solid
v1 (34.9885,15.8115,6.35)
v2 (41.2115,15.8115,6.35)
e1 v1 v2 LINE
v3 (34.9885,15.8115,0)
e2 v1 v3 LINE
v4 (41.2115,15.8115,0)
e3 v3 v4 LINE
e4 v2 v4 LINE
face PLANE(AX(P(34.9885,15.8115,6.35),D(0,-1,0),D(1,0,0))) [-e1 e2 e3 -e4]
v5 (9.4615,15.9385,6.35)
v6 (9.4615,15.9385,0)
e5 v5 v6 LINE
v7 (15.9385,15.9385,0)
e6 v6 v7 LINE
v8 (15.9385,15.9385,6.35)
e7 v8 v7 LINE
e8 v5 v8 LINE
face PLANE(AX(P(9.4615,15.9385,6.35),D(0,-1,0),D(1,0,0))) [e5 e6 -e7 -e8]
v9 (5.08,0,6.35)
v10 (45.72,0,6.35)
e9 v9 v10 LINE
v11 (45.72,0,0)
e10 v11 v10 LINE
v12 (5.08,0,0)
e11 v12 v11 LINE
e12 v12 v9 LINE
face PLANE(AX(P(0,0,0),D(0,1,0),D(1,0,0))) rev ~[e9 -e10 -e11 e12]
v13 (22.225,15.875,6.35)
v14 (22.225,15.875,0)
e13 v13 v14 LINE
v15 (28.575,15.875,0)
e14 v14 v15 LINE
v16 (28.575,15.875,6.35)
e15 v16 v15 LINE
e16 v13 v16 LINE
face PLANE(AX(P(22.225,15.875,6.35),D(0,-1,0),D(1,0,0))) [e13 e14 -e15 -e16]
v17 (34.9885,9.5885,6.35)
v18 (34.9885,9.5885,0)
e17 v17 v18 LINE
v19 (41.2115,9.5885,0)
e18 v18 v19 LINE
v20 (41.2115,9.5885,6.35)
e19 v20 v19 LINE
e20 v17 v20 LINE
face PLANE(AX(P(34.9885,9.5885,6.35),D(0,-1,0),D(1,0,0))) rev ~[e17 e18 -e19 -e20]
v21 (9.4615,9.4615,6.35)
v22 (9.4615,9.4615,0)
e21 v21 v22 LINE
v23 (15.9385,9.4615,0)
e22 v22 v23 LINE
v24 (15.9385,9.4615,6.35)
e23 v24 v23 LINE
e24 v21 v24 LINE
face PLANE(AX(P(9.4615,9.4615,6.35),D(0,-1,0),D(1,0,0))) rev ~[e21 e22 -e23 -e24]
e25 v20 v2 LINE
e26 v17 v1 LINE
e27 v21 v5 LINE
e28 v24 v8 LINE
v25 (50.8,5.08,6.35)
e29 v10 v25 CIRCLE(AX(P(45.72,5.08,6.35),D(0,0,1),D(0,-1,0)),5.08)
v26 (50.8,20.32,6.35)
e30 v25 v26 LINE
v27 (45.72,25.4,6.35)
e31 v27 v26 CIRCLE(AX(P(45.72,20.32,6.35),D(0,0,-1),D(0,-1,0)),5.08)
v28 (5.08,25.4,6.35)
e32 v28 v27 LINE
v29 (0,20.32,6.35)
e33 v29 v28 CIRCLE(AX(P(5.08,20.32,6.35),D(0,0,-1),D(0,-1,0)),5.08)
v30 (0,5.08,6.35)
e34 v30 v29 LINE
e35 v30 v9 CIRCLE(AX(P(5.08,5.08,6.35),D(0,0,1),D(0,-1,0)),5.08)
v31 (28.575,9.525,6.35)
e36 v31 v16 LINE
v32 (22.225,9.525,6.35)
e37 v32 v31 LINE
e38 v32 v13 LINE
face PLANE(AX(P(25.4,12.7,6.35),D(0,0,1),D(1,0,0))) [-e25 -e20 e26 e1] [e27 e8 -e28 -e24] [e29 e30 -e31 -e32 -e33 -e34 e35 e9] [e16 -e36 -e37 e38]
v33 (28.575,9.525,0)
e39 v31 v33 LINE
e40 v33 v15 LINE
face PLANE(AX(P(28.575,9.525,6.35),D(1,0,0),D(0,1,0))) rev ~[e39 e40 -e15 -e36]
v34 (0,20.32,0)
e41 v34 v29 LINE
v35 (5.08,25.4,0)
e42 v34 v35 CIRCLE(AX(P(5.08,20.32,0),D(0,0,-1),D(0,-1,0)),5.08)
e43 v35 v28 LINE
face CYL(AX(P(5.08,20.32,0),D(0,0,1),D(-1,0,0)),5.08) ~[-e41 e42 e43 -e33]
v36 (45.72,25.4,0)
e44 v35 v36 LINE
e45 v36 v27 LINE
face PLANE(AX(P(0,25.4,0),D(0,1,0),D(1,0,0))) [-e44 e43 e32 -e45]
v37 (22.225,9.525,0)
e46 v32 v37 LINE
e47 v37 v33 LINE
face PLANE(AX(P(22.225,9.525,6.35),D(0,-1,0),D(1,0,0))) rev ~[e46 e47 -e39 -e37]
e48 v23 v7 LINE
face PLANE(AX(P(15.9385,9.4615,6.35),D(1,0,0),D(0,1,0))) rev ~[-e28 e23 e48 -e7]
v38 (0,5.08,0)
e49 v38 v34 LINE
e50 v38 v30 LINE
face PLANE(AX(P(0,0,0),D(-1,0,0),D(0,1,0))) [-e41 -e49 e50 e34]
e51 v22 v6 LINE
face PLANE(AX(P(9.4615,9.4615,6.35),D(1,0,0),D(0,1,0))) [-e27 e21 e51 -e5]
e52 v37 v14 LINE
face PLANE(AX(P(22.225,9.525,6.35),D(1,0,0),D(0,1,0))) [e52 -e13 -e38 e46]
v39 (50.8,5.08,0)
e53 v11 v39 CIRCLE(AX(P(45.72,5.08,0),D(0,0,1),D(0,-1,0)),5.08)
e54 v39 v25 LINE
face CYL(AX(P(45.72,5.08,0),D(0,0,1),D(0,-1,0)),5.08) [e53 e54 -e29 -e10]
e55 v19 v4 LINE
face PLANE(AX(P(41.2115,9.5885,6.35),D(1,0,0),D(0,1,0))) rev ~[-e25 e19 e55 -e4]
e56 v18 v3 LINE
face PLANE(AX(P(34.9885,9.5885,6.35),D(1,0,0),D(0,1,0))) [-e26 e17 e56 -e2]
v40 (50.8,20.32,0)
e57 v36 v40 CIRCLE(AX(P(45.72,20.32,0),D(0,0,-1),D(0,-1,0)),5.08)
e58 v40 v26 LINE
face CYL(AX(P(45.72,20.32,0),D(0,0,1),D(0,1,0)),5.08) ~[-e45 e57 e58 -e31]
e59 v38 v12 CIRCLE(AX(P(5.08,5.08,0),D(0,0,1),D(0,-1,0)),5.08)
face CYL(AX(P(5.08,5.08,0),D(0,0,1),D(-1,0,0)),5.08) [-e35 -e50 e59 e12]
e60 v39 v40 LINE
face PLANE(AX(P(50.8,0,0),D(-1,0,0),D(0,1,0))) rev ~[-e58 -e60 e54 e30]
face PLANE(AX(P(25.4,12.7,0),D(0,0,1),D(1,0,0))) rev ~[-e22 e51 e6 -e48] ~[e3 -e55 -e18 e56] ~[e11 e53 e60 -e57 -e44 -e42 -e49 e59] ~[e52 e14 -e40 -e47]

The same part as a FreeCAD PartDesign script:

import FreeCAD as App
import Part
import Sketcher
from FreeCAD import Vector
Q = App.Units.Quantity


def edges_at(feature, points):
    """Names of the edges that pass closest to the given points."""
    edges = feature.Shape.Edges
    near = lambda p: min(range(len(edges)), key=lambda i: edges[i].distToShape(Part.Vertex(*p))[0])
    return sorted({f"Edge{near(p) + 1}" for p in points})


def add_polygon(sketch, points):
    """Adds a closed chain of lines whose ends are joined by coincident constraints."""
    first, n = sketch.GeometryCount, len(points)
    for a, b in zip(points, points[1:] + points[:1]):
        sketch.addGeometry(Part.LineSegment(App.Vector(*a, 0), App.Vector(*b, 0)), False)
    for i in range(n):
        sketch.addConstraint(Sketcher.Constraint("Coincident", first + i, 2, first + (i + 1) % n, 1))

doc = App.newDocument("Part")
params = doc.addObject("Spreadsheet::Sheet", "Params")
for row, (alias, value) in enumerate([
    ("sketch1_width", "2 in"),
    ("sketch1_height", "1 in"),
    ("pad1_length", "0.25 in"),
    ("sketch2_width", "0.25 in"),
    ("sketch2_width2", "0.255 in"),
    ("sketch2_width3", "0.245 in"),
    ("pocket1_length", "1 in"),
    ("fillet_radius", "0.2 in"),
], start=1):
    params.set(f"A{row}", alias)
    params.set(f"B{row}", "=" + value)
    params.setAlias(f"B{row}", alias)

body = doc.addObject("PartDesign::Body", "Body")

# Sketch on XY plane
sketch1 = body.newObject("Sketcher::SketchObject", "Sketch")
sketch1.AttachmentSupport = (doc.getObject("XY_Plane"), [""])
sketch1.MapMode = "FlatFace"
add_polygon(sketch1, [(0, 25), (0, 0), (51, 0), (51, 25)])  # lines 0-3
sketch1.addConstraint([
    Sketcher.Constraint("Vertical", 0),
    Sketcher.Constraint("Horizontal", 1),
    Sketcher.Constraint("Vertical", 2),
    Sketcher.Constraint("Horizontal", 3),
    Sketcher.Constraint("Coincident", 0, 2, -1, 1),
    Sketcher.Constraint("DistanceX", 1, 1, 1, 2, Q("2 in")),
    Sketcher.Constraint("DistanceY", 0, 2, 0, 1, Q("1 in")),
])
sketch1.setExpression("Constraints[9]", "Params.sketch1_width")
sketch1.setExpression("Constraints[10]", "Params.sketch1_height")
pad1 = body.newObject("PartDesign::Pad", "Pad")
pad1.Profile = sketch1
pad1.setExpression("Length", "Params.pad1_length")

# Sketch on XY plane
sketch2 = body.newObject("Sketcher::SketchObject", "Sketch001")
sketch2.AttachmentSupport = (doc.getObject("XY_Plane"), [""])
sketch2.MapMode = "FlatFace"
sketch2.AttachmentOffset = App.Placement(Vector(0, 0, 0.25 * 25.4), App.Rotation())
add_polygon(sketch2, [(9, 16), (9, 9), (16, 9), (16, 16)])  # lines 0-3
add_polygon(sketch2, [(22, 16), (22, 10), (29, 10), (29, 16)])  # lines 4-7
add_polygon(sketch2, [(35, 16), (35, 10), (41, 10), (41, 16)])  # lines 8-11
sketch2.addConstraint([
    Sketcher.Constraint("Vertical", 0),
    Sketcher.Constraint("Horizontal", 1),
    Sketcher.Constraint("Vertical", 2),
    Sketcher.Constraint("Horizontal", 3),
    Sketcher.Constraint("Vertical", 4),
    Sketcher.Constraint("Horizontal", 5),
    Sketcher.Constraint("Vertical", 6),
    Sketcher.Constraint("Horizontal", 7),
    Sketcher.Constraint("Vertical", 8),
    Sketcher.Constraint("Horizontal", 9),
    Sketcher.Constraint("Vertical", 10),
    Sketcher.Constraint("Horizontal", 11),
    Sketcher.Constraint("Equal", 3, 0),
    Sketcher.Constraint("Equal", 7, 4),
    Sketcher.Constraint("Equal", 11, 8),
    Sketcher.Constraint("DistanceX", 5, 1, 5, 2, Q("0.25 in")),
    Sketcher.Constraint("DistanceX", 1, 1, 1, 2, Q("0.255 in")),
    Sketcher.Constraint("DistanceX", 9, 1, 9, 2, Q("0.245 in")),
    Sketcher.Constraint("DistanceX", 1, 2, 8, 2, Q("0.75 in")),
    Sketcher.Constraint("DistanceX", -1, 1, 4, 2, Q("0.875 in")),
    Sketcher.Constraint("DistanceY", -1, 1, 4, 2, Q("0.375 in")),
    Sketcher.Constraint("DistanceY", 1, 2, 8, 2, Q("0.005 in")),
    Sketcher.Constraint("DistanceX", -1, 1, 0, 2, Q("0.3725 in")),
    Sketcher.Constraint("DistanceY", -1, 1, 0, 2, Q("0.3725 in")),
])
sketch2.setExpression("Constraints[27]", "Params.sketch2_width")
sketch2.setExpression("Constraints[28]", "Params.sketch2_width2")
sketch2.setExpression("Constraints[29]", "Params.sketch2_width3")
pocket1 = body.newObject("PartDesign::Pocket", "Pocket")
pocket1.Profile = sketch2
pocket1.setExpression("Length", "Params.pocket1_length")
doc.recompute()

fillet = body.newObject("PartDesign::Fillet", "Fillet")
fillet.Base = (pocket1, edges_at(pocket1, [
    (0, 25.4, 3.175),
    (0, 0, 3.175),
    (50.8, 25.4, 3.175),
    (50.8, 0, 3.175),
]))
fillet.setExpression("Radius", "Params.fillet_radius")

doc.recompute()
